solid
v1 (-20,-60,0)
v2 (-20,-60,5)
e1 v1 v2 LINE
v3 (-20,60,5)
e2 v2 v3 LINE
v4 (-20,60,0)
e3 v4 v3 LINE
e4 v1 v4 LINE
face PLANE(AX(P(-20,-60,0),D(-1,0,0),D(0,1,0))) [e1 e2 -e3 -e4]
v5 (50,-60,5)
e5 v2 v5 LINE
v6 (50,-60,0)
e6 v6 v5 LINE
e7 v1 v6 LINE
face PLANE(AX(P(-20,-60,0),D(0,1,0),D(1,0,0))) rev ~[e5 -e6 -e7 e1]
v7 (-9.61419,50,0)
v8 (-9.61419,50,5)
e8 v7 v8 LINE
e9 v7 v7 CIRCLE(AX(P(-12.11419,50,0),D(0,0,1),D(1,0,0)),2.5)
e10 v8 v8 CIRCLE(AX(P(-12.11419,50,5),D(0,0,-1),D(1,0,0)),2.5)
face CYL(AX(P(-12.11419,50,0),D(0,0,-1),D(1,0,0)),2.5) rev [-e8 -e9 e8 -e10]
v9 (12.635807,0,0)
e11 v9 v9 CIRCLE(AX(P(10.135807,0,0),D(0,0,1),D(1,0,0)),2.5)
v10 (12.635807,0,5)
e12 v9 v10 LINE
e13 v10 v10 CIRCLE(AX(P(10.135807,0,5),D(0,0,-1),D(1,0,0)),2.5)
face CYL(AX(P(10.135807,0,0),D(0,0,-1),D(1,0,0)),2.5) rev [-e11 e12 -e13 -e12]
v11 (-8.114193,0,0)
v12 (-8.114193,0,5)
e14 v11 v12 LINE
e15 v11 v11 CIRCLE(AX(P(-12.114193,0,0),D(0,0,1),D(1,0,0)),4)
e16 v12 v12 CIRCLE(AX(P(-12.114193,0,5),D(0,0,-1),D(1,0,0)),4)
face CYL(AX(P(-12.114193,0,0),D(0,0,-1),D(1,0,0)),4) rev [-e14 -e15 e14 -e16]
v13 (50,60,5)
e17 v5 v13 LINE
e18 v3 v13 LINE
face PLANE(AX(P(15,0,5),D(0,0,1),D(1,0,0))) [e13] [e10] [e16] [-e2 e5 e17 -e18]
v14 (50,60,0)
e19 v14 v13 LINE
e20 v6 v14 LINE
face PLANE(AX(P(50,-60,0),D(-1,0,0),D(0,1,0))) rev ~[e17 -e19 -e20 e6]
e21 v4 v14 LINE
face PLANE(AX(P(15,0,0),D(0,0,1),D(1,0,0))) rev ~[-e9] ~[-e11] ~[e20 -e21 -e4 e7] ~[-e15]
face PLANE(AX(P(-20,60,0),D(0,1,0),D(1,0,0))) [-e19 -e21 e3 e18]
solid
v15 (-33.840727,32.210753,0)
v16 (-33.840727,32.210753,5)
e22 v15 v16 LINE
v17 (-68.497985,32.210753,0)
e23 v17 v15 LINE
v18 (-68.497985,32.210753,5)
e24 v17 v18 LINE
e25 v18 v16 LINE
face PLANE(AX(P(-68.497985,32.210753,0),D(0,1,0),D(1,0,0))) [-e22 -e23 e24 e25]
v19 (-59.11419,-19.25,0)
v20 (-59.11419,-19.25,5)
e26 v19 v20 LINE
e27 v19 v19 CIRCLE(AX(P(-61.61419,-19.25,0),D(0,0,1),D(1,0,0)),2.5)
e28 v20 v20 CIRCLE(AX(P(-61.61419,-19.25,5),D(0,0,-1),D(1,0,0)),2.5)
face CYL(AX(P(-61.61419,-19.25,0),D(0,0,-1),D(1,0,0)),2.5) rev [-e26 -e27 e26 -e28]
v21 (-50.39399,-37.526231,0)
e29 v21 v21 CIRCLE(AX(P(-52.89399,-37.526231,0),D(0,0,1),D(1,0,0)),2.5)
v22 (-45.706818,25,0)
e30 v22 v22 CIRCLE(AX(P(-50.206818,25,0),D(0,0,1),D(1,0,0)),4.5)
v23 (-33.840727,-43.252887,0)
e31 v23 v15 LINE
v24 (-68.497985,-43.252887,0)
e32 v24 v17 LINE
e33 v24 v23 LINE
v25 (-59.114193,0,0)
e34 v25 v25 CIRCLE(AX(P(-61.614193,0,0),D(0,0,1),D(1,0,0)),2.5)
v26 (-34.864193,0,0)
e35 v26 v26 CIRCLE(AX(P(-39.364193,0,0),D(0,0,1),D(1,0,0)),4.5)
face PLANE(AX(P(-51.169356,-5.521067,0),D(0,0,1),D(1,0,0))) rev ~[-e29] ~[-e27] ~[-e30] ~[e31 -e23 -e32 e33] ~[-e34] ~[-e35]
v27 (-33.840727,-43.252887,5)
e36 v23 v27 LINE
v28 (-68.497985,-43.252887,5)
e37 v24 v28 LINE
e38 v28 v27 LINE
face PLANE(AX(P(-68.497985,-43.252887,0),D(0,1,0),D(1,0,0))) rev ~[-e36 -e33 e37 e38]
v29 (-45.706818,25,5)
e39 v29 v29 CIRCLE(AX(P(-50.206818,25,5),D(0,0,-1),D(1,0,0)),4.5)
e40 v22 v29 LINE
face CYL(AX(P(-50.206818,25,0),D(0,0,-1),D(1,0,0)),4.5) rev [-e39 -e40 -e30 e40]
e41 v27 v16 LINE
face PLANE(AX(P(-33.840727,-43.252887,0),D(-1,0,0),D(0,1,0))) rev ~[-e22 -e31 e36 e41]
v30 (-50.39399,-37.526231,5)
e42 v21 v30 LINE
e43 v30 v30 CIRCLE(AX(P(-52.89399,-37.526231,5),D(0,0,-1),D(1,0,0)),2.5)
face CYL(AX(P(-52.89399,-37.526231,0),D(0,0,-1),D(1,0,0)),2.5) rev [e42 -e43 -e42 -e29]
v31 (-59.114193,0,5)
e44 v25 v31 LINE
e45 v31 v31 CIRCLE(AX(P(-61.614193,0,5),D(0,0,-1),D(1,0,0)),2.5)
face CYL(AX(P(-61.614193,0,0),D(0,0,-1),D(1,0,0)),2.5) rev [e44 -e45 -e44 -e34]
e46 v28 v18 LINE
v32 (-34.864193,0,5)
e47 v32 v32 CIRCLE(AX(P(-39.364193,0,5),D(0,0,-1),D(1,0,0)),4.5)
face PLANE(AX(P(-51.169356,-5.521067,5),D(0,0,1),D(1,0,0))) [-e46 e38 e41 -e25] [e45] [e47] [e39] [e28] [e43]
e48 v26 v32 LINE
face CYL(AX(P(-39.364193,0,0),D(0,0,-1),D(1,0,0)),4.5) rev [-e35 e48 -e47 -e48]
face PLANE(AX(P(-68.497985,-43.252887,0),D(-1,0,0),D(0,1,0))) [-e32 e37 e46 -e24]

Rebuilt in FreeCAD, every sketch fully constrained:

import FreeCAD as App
import Part
import Sketcher

V = App.Vector
Q = App.Units.Quantity

doc = App.newDocument("Part")
body = doc.addObject("PartDesign::Body", "Body")

sketch1 = body.newObject("Sketcher::SketchObject", "Sketch")
sketch1.AttachmentSupport = (doc.getObject("XY_Plane"), [""])
sketch1.MapMode = "FlatFace"
sketch1.addGeometry([
    Part.LineSegment(V(-68.497985, 32.210753, 0), V(-68.497985, -43.252887, 0)),
    Part.LineSegment(V(-68.497985, -43.252887, 0), V(-33.840727, -43.252887, 0)),
    Part.LineSegment(V(-33.840727, -43.252887, 0), V(-33.840727, 32.210753, 0)),
    Part.LineSegment(V(-33.840727, 32.210753, 0), V(-68.497985, 32.210753, 0)),
], False)
sketch1.addConstraint([
    Sketcher.Constraint("Coincident", 0, 2, 1, 1),
    Sketcher.Constraint("Coincident", 1, 2, 2, 1),
    Sketcher.Constraint("Coincident", 2, 2, 3, 1),
    Sketcher.Constraint("Coincident", 3, 2, 0, 1),
    Sketcher.Constraint("Vertical", 0),
    Sketcher.Constraint("Horizontal", 1),
    Sketcher.Constraint("Vertical", 2),
    Sketcher.Constraint("Horizontal", 3),
    Sketcher.Constraint("DistanceX", 1, 1, 1, 2, Q("34.657259 mm")),
    Sketcher.Constraint("DistanceY", 0, 2, 0, 1, Q("75.46364 mm")),
    Sketcher.Constraint("DistanceX", 0, 2, -1, 1, Q("68.497985 mm")),
    Sketcher.Constraint("DistanceY", 0, 2, -1, 1, Q("43.252887 mm")),
])
pad1 = body.newObject("PartDesign::Pad", "Pad")
pad1.Profile = sketch1
pad1.Length = 5

sketch2 = body.newObject("Sketcher::SketchObject", "Sketch001")
sketch2.AttachmentSupport = (doc.getObject("XY_Plane"), [""])
sketch2.MapMode = "FlatFace"
sketch2.addGeometry(Part.Circle(V(-61.614193, 0, 0), V(0, 0, 1), 2.5), False)
sketch2.addConstraint([
    Sketcher.Constraint("PointOnObject", 0, 3, -1),
    Sketcher.Constraint("Diameter", 0, Q("5 mm")),
    Sketcher.Constraint("DistanceX", 0, 3, -1, 1, Q("61.614193 mm")),
])
pocket1 = body.newObject("PartDesign::Pocket", "Pocket")
pocket1.Profile = sketch2
pocket1.Length = 25
pocket1.Reversed = True

sketch3 = body.newObject("Sketcher::SketchObject", "Sketch002")
sketch3.AttachmentSupport = (doc.getObject("XY_Plane"), [""])
sketch3.MapMode = "FlatFace"
sketch3.addGeometry(Part.Circle(V(-61.61419, -19.25, 0), V(0, 0, 1), 2.5), False)
sketch3.addConstraint([
    Sketcher.Constraint("Diameter", 0, Q("5 mm")),
    Sketcher.Constraint("DistanceY", 0, 3, -1, 1, Q("19.25 mm")),
    Sketcher.Constraint("DistanceX", 0, 3, -1, 1, Q("61.61419 mm")),
])
pocket2 = body.newObject("PartDesign::Pocket", "Pocket001")
pocket2.Profile = sketch3
pocket2.Length = 25

sketch4 = body.newObject("Sketcher::SketchObject", "Sketch003")
sketch4.AttachmentSupport = (doc.getObject("XY_Plane"), [""])
sketch4.MapMode = "FlatFace"
sketch4.addGeometry(Part.Circle(V(-39.364193, 0, 0), V(0, 0, 1), 4.5), False)
sketch4.addConstraint([
    Sketcher.Constraint("PointOnObject", 0, 3, -1),
    Sketcher.Constraint("Diameter", 0, Q("9 mm")),
    Sketcher.Constraint("DistanceX", 0, 3, -1, 1, Q("39.364193 mm")),
])
pocket3 = body.newObject("PartDesign::Pocket", "Pocket002")
pocket3.Profile = sketch4
pocket3.Length = 25
pocket3.Reversed = True

sketch5 = body.newObject("Sketcher::SketchObject", "Sketch004")
sketch5.AttachmentSupport = (doc.getObject("XY_Plane"), [""])
sketch5.MapMode = "FlatFace"
sketch5.addGeometry(Part.Circle(V(-61.61419, -19.25, 0), V(0, 0, 1), 2.5), False)
sketch5.addConstraint([
    Sketcher.Constraint("Diameter", 0, Q("5 mm")),
    Sketcher.Constraint("DistanceY", 0, 3, -1, 1, Q("19.25 mm")),
    Sketcher.Constraint("DistanceX", 0, 3, -1, 1, Q("61.61419 mm")),
])
pocket4 = body.newObject("PartDesign::Pocket", "Pocket003")
pocket4.Profile = sketch5
pocket4.Length = 25
pocket4.Reversed = True

sketch6 = body.newObject("Sketcher::SketchObject", "Sketch005")
sketch6.AttachmentSupport = (doc.getObject("XY_Plane"), [""])
sketch6.MapMode = "FlatFace"
sketch6.addGeometry(Part.Circle(V(-50.206818, 25, 0), V(0, 0, 1), 4.5), False)
sketch6.addConstraint([
    Sketcher.Constraint("Diameter", 0, Q("9 mm")),
    Sketcher.Constraint("DistanceY", -1, 1, 0, 3, Q("25 mm")),
    Sketcher.Constraint("DistanceX", 0, 3, -1, 1, Q("50.206818 mm")),
])
pocket5 = body.newObject("PartDesign::Pocket", "Pocket004")
pocket5.Profile = sketch6
pocket5.Length = 25
pocket5.Reversed = True

sketch7 = body.newObject("Sketcher::SketchObject", "Sketch006")
sketch7.AttachmentSupport = (doc.getObject("XY_Plane"), [""])
sketch7.MapMode = "FlatFace"
sketch7.addGeometry(Part.Circle(V(-52.89399, -37.526231, 0), V(0, 0, 1), 2.5), False)
sketch7.addConstraint([
    Sketcher.Constraint("Diameter", 0, Q("5 mm")),
    Sketcher.Constraint("DistanceX", 0, 3, -1, 1, Q("52.89399 mm")),
    Sketcher.Constraint("DistanceY", 0, 3, -1, 1, Q("37.526231 mm")),
])
pocket6 = body.newObject("PartDesign::Pocket", "Pocket005")
pocket6.Profile = sketch7
pocket6.Length = 25
pocket6.Reversed = True
body2 = doc.addObject("PartDesign::Body", "Body001")

sketch8 = body2.newObject("Sketcher::SketchObject", "Sketch007")
sketch8.AttachmentSupport = (doc.getObject("XY_Plane001"), [""])
sketch8.MapMode = "FlatFace"
sketch8.addGeometry([
    Part.LineSegment(V(-20, 60, 0), V(-20, -60, 0)),
    Part.LineSegment(V(-20, -60, 0), V(50, -60, 0)),
    Part.LineSegment(V(50, -60, 0), V(50, 60, 0)),
    Part.LineSegment(V(50, 60, 0), V(-20, 60, 0)),
], False)
sketch8.addConstraint([
    Sketcher.Constraint("Coincident", 0, 2, 1, 1),
    Sketcher.Constraint("Coincident", 1, 2, 2, 1),
    Sketcher.Constraint("Coincident", 2, 2, 3, 1),
    Sketcher.Constraint("Coincident", 3, 2, 0, 1),
    Sketcher.Constraint("Vertical", 0),
    Sketcher.Constraint("Horizontal", 1),
    Sketcher.Constraint("Vertical", 2),
    Sketcher.Constraint("Horizontal", 3),
    Sketcher.Constraint("DistanceX", 1, 1, 1, 2, Q("70 mm")),
    Sketcher.Constraint("DistanceY", 0, 2, 0, 1, Q("120 mm")),
    Sketcher.Constraint("DistanceX", 0, 2, -1, 1, Q("20 mm")),
    Sketcher.Constraint("DistanceY", 0, 2, -1, 1, Q("60 mm")),
])
pad2 = body2.newObject("PartDesign::Pad", "Pad001")
pad2.Profile = sketch8
pad2.Length = 5

sketch9 = body2.newObject("Sketcher::SketchObject", "Sketch008")
sketch9.AttachmentSupport = (doc.getObject("XY_Plane001"), [""])
sketch9.MapMode = "FlatFace"
sketch9.addGeometry(Part.Circle(V(-12.114193, 0, 0), V(0, 0, 1), 4), False)
sketch9.addConstraint([
    Sketcher.Constraint("PointOnObject", 0, 3, -1),
    Sketcher.Constraint("Diameter", 0, Q("8 mm")),
    Sketcher.Constraint("DistanceX", 0, 3, -1, 1, Q("12.114193 mm")),
])
pocket7 = body2.newObject("PartDesign::Pocket", "Pocket006")
pocket7.Profile = sketch9
pocket7.Length = 25
pocket7.Reversed = True

sketch10 = body2.newObject("Sketcher::SketchObject", "Sketch009")
sketch10.AttachmentSupport = (doc.getObject("XY_Plane001"), [""])
sketch10.MapMode = "FlatFace"
sketch10.addGeometry(Part.Circle(V(-12.11419, 50, 0), V(0, 0, 1), 2.5), False)
sketch10.addConstraint([
    Sketcher.Constraint("Diameter", 0, Q("5 mm")),
    Sketcher.Constraint("DistanceY", -1, 1, 0, 3, Q("50 mm")),
    Sketcher.Constraint("DistanceX", 0, 3, -1, 1, Q("12.11419 mm")),
])
pocket8 = body2.newObject("PartDesign::Pocket", "Pocket007")
pocket8.Profile = sketch10
pocket8.Length = 25
pocket8.Reversed = True

sketch11 = body2.newObject("Sketcher::SketchObject", "Sketch010")
sketch11.AttachmentSupport = (doc.getObject("XY_Plane001"), [""])
sketch11.MapMode = "FlatFace"
sketch11.addGeometry(Part.Circle(V(10.135807, 0, 0), V(0, 0, 1), 2.5), False)
sketch11.addConstraint([
    Sketcher.Constraint("PointOnObject", 0, 3, -1),
    Sketcher.Constraint("Diameter", 0, Q("5 mm")),
    Sketcher.Constraint("DistanceX", -1, 1, 0, 3, Q("10.135807 mm")),
])
pocket9 = body2.newObject("PartDesign::Pocket", "Pocket008")
pocket9.Profile = sketch11
pocket9.Length = 25
pocket9.Reversed = True

doc.recompute()
